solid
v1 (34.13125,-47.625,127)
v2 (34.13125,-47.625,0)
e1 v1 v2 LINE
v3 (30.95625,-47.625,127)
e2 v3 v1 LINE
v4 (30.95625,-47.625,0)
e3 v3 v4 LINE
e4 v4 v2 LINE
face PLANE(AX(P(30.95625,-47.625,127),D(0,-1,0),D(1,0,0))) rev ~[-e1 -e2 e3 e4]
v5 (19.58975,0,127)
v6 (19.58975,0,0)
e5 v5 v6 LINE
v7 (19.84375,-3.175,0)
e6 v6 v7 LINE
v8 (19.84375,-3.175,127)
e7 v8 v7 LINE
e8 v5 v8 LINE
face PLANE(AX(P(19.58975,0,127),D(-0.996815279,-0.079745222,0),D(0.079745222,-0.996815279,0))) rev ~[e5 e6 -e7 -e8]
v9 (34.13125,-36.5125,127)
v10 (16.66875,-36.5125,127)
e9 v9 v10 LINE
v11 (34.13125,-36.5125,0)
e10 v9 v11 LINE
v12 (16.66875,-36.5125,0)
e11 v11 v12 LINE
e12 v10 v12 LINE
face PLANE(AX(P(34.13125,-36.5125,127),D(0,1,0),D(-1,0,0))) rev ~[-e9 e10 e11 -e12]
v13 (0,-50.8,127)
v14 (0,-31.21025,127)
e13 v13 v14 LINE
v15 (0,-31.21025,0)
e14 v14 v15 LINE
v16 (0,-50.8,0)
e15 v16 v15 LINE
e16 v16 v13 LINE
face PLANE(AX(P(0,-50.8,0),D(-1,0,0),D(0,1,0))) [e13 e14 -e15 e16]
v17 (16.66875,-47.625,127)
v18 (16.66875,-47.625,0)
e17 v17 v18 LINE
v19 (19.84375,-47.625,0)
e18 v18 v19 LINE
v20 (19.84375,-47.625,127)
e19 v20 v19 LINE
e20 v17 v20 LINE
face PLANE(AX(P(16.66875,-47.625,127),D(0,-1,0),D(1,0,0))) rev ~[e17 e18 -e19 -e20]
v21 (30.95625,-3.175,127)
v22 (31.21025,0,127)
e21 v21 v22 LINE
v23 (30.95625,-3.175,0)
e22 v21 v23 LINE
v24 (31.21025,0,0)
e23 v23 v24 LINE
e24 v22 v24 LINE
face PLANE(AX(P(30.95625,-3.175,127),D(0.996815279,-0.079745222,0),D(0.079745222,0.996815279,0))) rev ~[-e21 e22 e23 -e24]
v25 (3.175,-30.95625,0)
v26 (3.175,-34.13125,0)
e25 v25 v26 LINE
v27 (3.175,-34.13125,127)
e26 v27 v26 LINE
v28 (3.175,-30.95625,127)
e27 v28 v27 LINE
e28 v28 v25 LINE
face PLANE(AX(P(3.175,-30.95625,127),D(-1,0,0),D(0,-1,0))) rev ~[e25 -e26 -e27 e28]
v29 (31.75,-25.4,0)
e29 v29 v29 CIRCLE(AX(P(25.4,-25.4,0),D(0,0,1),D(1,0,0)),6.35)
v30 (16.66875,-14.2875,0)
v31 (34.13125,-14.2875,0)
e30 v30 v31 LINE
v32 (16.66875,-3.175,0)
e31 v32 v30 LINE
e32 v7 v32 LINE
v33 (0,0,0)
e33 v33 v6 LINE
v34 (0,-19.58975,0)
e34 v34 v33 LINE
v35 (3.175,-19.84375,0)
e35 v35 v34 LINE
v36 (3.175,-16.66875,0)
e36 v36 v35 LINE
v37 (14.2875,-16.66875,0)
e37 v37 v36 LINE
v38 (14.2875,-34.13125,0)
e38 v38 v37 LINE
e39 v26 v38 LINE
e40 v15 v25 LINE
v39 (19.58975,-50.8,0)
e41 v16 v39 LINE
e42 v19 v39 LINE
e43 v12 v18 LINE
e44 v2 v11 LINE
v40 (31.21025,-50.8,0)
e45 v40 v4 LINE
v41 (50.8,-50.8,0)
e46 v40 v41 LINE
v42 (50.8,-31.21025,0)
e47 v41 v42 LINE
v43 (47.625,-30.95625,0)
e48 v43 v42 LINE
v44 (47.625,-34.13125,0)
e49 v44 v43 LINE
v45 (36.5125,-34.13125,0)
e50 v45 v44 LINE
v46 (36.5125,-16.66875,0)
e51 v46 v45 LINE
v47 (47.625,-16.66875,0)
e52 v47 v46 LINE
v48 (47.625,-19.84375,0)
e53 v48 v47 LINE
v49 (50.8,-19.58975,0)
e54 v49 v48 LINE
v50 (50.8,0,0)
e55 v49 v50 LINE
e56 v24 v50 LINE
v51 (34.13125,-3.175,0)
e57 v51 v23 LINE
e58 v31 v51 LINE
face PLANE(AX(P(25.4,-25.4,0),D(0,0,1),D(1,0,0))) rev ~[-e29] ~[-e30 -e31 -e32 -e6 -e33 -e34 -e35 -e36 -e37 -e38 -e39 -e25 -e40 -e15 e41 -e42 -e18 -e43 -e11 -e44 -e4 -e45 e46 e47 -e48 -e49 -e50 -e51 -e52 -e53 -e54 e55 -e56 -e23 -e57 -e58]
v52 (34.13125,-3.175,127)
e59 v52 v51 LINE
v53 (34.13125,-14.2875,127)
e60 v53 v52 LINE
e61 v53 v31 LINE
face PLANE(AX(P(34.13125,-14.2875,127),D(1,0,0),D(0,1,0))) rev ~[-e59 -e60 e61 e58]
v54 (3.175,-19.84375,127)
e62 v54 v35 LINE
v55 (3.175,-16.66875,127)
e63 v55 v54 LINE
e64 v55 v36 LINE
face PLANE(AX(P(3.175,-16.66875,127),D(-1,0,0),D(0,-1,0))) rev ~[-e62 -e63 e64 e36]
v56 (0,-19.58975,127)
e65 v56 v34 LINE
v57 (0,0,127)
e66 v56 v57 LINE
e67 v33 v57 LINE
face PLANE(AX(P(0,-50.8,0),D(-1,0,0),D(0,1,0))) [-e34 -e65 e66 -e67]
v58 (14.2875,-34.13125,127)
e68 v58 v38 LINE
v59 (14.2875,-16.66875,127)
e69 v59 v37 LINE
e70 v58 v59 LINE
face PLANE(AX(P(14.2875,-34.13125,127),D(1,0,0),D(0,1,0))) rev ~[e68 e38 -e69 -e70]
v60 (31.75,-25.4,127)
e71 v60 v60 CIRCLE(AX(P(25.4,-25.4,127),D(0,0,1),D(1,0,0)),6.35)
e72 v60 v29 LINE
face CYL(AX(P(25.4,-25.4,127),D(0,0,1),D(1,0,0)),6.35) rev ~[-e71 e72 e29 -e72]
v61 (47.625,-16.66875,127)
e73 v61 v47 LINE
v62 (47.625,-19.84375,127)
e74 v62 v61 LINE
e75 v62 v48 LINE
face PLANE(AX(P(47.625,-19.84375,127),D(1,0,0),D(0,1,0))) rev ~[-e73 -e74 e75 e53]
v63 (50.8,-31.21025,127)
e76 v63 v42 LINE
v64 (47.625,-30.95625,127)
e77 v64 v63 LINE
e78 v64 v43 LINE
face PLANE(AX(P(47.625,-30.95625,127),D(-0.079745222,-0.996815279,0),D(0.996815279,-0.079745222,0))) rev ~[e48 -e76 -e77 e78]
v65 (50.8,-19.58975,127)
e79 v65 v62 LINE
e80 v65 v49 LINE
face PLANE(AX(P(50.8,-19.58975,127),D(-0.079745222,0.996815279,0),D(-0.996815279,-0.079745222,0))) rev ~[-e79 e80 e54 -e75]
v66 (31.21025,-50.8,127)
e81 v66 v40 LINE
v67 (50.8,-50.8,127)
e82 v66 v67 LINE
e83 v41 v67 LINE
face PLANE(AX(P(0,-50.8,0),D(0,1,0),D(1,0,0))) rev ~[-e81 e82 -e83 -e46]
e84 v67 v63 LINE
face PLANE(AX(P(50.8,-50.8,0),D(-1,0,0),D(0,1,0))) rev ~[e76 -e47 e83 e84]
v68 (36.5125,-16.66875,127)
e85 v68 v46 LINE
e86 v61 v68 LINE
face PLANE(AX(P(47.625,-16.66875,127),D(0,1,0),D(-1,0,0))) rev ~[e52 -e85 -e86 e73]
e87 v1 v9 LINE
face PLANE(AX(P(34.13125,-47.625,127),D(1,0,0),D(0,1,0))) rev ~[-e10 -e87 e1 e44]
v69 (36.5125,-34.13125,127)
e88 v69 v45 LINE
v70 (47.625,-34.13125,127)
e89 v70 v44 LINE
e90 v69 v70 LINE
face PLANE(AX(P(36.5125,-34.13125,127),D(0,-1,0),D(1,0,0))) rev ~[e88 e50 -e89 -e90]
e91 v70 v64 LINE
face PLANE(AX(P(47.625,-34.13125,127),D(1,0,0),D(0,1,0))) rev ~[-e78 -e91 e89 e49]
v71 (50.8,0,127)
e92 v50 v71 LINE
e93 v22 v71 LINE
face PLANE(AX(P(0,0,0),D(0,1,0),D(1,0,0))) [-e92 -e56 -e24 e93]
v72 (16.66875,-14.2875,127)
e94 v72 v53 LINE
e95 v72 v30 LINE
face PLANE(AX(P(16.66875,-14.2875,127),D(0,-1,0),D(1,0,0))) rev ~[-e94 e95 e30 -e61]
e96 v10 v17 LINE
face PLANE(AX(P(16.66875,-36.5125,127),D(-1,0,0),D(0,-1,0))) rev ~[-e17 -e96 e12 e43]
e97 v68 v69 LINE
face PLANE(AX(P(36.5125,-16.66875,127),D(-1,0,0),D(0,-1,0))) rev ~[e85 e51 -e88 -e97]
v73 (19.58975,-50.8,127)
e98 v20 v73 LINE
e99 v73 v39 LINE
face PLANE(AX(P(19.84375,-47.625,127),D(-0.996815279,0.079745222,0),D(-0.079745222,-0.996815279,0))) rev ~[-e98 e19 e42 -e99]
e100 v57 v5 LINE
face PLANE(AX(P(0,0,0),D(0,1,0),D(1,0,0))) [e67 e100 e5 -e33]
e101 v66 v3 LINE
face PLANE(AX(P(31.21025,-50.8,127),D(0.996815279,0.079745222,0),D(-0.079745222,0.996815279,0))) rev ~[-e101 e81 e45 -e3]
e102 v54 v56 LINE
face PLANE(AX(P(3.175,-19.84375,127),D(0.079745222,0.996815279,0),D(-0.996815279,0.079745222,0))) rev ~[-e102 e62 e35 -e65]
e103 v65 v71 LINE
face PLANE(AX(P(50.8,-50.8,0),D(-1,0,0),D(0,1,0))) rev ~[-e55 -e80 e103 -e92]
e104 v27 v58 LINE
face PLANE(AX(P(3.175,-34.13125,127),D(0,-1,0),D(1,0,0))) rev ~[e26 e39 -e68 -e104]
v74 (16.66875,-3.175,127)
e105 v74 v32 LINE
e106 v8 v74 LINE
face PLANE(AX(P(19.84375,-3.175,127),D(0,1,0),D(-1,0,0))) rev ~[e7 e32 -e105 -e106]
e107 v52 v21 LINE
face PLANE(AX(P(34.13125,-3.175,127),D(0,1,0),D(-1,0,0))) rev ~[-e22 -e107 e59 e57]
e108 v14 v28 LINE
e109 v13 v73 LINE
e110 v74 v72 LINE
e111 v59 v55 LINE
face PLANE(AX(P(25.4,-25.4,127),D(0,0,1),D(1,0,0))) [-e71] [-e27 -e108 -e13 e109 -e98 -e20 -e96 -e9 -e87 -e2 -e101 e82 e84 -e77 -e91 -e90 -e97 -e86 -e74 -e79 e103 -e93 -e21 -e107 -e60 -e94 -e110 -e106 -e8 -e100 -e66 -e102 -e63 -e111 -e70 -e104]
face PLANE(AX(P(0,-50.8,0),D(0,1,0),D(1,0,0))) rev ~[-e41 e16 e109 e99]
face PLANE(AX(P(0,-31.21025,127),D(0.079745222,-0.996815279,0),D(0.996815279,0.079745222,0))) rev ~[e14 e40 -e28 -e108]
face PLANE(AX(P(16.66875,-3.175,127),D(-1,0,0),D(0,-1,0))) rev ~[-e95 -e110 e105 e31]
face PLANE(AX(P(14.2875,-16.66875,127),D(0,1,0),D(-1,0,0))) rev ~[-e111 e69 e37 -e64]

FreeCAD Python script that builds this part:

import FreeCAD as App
import Part
import Sketcher

V = App.Vector
Q = App.Units.Quantity


def add_polygon(sketch, points):
    """Adds a closed chain of lines whose ends are joined by coincident constraints."""
    first, n = sketch.GeometryCount, len(points)
    for a, b in zip(points, points[1:] + points[:1]):
        sketch.addGeometry(Part.LineSegment(App.Vector(*a, 0), App.Vector(*b, 0)), False)
    for i in range(n):
        sketch.addConstraint(Sketcher.Constraint("Coincident", first + i, 2, first + (i + 1) % n, 1))

doc = App.newDocument("Part")
body = doc.addObject("PartDesign::Body", "Body")

# Sketch on XY plane
sketch1 = doc.addObject("Sketcher::SketchObject", "Sketch")
body.addObject(sketch1)
sketch1.AttachmentSupport = (doc.XY_Plane, [""])
sketch1.MapMode = "FlatFace"
add_polygon(sketch1, [(0, 0), (0, -51), (51, -51), (51, 0)])  # lines 0-3
sketch1.addConstraint([
    Sketcher.Constraint("Vertical", 0),
    Sketcher.Constraint("Horizontal", 1),
    Sketcher.Constraint("Vertical", 2),
    Sketcher.Constraint("Horizontal", 3),
    Sketcher.Constraint("Coincident", 3, 2, -1, 1),
    Sketcher.Constraint("Equal", 3, 0),
    Sketcher.Constraint("DistanceX", 1, 1, 1, 2, Q("2 in")),
])
pad1 = doc.addObject("PartDesign::Pad", "Pad")
body.addObject(pad1)
pad1.Profile = sketch1
pad1.Length = Q("5 in")

# Sketch on XY plane
sketch2 = doc.addObject("Sketcher::SketchObject", "Sketch001")
body.addObject(sketch2)
sketch2.AttachmentSupport = (doc.XY_Plane, [""])
sketch2.MapMode = "FlatFace"
sketch2.AttachmentOffset = App.Placement(V(0, 0, 5 * 25.4), App.Rotation())
sketch2.addGeometry(Part.Circle(V(25.4, -25.4, 0), V(0, 0, 1), 6.3), False)  # 0
add_polygon(sketch2, [(19.8, -47.6), (19.6, -50.8), (31.2, -50.8), (31, -47.6), (34.1, -47.6), (34.1, -36.5), (16.7, -36.5), (16.7, -47.6)])  # lines 1-8
add_polygon(sketch2, [(50.8, -31.2), (50.8, -19.6), (47.6, -19.8), (47.6, -16.7), (36.5, -16.7), (36.5, -34.1), (47.6, -34.1), (47.6, -31)])  # lines 9-16
add_polygon(sketch2, [(3.2, -19.8), (0, -19.6), (0, -31.2), (3.2, -31), (3.2, -34.1), (14.3, -34.1), (14.3, -16.7), (3.2, -16.7)])  # lines 17-24
add_polygon(sketch2, [(19.8, -3.2), (16.7, -3.2), (16.7, -14.3), (34.1, -14.3), (34.1, -3.2), (31, -3.2), (31.2, 0), (19.6, 0)])  # lines 25-32
sketch2.addConstraint([
    Sketcher.Constraint("Horizontal", 2),
    Sketcher.Constraint("Horizontal", 4),
    Sketcher.Constraint("Vertical", 5),
    Sketcher.Constraint("Horizontal", 6),
    Sketcher.Constraint("Vertical", 7),
    Sketcher.Constraint("Horizontal", 8),
    Sketcher.Constraint("Vertical", 9),
    Sketcher.Constraint("Vertical", 11),
    Sketcher.Constraint("Horizontal", 12),
    Sketcher.Constraint("Vertical", 13),
    Sketcher.Constraint("Horizontal", 14),
    Sketcher.Constraint("Vertical", 15),
    Sketcher.Constraint("Vertical", 18),
    Sketcher.Constraint("Vertical", 20),
    Sketcher.Constraint("Horizontal", 21),
    Sketcher.Constraint("Vertical", 22),
    Sketcher.Constraint("Horizontal", 23),
    Sketcher.Constraint("Vertical", 24),
    Sketcher.Constraint("Horizontal", 25),
    Sketcher.Constraint("Vertical", 26),
    Sketcher.Constraint("Horizontal", 27),
    Sketcher.Constraint("Vertical", 28),
    Sketcher.Constraint("Horizontal", 29),
    Sketcher.Constraint("Horizontal", 31),
    Sketcher.Constraint("PointOnObject", 17, 2, -2),
    Sketcher.Constraint("PointOnObject", 30, 2, -1),
    Sketcher.Constraint("Perpendicular", 3, 10),
    Sketcher.Constraint("Perpendicular", 1, 16),
    Sketcher.Constraint("Parallel", 16, 17),
    Sketcher.Constraint("Parallel", 10, 19),
    Sketcher.Constraint("Perpendicular", 17, 30),
    Sketcher.Constraint("Perpendicular", 19, 32),
    Sketcher.Constraint("Horizontal", 4, 2, 7, 2),
    Sketcher.Constraint("Horizontal", 9, 2, 17, 2),
    Sketcher.Constraint("Horizontal", 16, 2, 18, 2),
    Sketcher.Constraint("Horizontal", 15, 2, 19, 2),
    Sketcher.Constraint("Horizontal", 14, 2, 20, 2),
    Sketcher.Constraint("Horizontal", 12, 2, 22, 2),
    Sketcher.Constraint("Horizontal", 10, 2, 24, 2),
    Sketcher.Constraint("Horizontal", 25, 2, 28, 2),
    Sketcher.Constraint("Vertical", 11, 2, 14, 2),
    Sketcher.Constraint("Vertical", 20, 2, 23, 2),
    Sketcher.Constraint("Vertical", 7, 2, 25, 2),
    Sketcher.Constraint("Vertical", 5, 2, 27, 2),
    Sketcher.Constraint("Vertical", 3, 2, 29, 2),
    Sketcher.Constraint("Vertical", 2, 2, 30, 2),
    Sketcher.Constraint("Vertical", 1, 2, 31, 2),
    Sketcher.Constraint("Equal", 4, 8),
    Sketcher.Constraint("Equal", 14, 21),
    Sketcher.Constraint("Equal", 23, 5),
    Sketcher.Constraint("Equal", 31, 9),
    Sketcher.Constraint("Equal", 29, 11),
    Sketcher.Constraint("Equal", 27, 13),
    Sketcher.Constraint("Equal", 11, 15),
    Sketcher.Constraint("Equal", 7, 26),
    Sketcher.Constraint("Diameter", 0, Q("0.5 in")),
    Sketcher.Constraint("DistanceX", -1, 1, 0, 3, Q("1 in")),
    Sketcher.Constraint("DistanceY", 0, 3, -1, 1, Q("1 in")),
    Sketcher.Constraint("DistanceY", 1, 2, -1, 1, Q("2 in")),
    Sketcher.Constraint("DistanceX", -1, 1, 9, 2, Q("2 in")),
    Sketcher.Constraint("DistanceX", 4, 1, 4, 2, Q("0.125 in")),
    Sketcher.Constraint("DistanceX", 6, 2, 6, 1, Q("0.6875 in")),
    Sketcher.Constraint("DistanceX", 12, 2, 12, 1, Q("0.4375 in")),
    Sketcher.Constraint("DistanceX", 3, 2, 2, 2, Q("0.01 in")),
    Sketcher.Constraint("DistanceX", -1, 1, 3, 2, Q("1.21875 in")),
    Sketcher.Constraint("DistanceY", 3, 2, -1, 1, Q("1.875 in")),
    Sketcher.Constraint("DistanceY", 10, 2, -1, 1, Q("0.78125 in")),
])
pocket1 = doc.addObject("PartDesign::Pocket", "Pocket")
body.addObject(pocket1)
pocket1.Profile = sketch2
pocket1.Length = Q("7 in")

doc.recompute()
